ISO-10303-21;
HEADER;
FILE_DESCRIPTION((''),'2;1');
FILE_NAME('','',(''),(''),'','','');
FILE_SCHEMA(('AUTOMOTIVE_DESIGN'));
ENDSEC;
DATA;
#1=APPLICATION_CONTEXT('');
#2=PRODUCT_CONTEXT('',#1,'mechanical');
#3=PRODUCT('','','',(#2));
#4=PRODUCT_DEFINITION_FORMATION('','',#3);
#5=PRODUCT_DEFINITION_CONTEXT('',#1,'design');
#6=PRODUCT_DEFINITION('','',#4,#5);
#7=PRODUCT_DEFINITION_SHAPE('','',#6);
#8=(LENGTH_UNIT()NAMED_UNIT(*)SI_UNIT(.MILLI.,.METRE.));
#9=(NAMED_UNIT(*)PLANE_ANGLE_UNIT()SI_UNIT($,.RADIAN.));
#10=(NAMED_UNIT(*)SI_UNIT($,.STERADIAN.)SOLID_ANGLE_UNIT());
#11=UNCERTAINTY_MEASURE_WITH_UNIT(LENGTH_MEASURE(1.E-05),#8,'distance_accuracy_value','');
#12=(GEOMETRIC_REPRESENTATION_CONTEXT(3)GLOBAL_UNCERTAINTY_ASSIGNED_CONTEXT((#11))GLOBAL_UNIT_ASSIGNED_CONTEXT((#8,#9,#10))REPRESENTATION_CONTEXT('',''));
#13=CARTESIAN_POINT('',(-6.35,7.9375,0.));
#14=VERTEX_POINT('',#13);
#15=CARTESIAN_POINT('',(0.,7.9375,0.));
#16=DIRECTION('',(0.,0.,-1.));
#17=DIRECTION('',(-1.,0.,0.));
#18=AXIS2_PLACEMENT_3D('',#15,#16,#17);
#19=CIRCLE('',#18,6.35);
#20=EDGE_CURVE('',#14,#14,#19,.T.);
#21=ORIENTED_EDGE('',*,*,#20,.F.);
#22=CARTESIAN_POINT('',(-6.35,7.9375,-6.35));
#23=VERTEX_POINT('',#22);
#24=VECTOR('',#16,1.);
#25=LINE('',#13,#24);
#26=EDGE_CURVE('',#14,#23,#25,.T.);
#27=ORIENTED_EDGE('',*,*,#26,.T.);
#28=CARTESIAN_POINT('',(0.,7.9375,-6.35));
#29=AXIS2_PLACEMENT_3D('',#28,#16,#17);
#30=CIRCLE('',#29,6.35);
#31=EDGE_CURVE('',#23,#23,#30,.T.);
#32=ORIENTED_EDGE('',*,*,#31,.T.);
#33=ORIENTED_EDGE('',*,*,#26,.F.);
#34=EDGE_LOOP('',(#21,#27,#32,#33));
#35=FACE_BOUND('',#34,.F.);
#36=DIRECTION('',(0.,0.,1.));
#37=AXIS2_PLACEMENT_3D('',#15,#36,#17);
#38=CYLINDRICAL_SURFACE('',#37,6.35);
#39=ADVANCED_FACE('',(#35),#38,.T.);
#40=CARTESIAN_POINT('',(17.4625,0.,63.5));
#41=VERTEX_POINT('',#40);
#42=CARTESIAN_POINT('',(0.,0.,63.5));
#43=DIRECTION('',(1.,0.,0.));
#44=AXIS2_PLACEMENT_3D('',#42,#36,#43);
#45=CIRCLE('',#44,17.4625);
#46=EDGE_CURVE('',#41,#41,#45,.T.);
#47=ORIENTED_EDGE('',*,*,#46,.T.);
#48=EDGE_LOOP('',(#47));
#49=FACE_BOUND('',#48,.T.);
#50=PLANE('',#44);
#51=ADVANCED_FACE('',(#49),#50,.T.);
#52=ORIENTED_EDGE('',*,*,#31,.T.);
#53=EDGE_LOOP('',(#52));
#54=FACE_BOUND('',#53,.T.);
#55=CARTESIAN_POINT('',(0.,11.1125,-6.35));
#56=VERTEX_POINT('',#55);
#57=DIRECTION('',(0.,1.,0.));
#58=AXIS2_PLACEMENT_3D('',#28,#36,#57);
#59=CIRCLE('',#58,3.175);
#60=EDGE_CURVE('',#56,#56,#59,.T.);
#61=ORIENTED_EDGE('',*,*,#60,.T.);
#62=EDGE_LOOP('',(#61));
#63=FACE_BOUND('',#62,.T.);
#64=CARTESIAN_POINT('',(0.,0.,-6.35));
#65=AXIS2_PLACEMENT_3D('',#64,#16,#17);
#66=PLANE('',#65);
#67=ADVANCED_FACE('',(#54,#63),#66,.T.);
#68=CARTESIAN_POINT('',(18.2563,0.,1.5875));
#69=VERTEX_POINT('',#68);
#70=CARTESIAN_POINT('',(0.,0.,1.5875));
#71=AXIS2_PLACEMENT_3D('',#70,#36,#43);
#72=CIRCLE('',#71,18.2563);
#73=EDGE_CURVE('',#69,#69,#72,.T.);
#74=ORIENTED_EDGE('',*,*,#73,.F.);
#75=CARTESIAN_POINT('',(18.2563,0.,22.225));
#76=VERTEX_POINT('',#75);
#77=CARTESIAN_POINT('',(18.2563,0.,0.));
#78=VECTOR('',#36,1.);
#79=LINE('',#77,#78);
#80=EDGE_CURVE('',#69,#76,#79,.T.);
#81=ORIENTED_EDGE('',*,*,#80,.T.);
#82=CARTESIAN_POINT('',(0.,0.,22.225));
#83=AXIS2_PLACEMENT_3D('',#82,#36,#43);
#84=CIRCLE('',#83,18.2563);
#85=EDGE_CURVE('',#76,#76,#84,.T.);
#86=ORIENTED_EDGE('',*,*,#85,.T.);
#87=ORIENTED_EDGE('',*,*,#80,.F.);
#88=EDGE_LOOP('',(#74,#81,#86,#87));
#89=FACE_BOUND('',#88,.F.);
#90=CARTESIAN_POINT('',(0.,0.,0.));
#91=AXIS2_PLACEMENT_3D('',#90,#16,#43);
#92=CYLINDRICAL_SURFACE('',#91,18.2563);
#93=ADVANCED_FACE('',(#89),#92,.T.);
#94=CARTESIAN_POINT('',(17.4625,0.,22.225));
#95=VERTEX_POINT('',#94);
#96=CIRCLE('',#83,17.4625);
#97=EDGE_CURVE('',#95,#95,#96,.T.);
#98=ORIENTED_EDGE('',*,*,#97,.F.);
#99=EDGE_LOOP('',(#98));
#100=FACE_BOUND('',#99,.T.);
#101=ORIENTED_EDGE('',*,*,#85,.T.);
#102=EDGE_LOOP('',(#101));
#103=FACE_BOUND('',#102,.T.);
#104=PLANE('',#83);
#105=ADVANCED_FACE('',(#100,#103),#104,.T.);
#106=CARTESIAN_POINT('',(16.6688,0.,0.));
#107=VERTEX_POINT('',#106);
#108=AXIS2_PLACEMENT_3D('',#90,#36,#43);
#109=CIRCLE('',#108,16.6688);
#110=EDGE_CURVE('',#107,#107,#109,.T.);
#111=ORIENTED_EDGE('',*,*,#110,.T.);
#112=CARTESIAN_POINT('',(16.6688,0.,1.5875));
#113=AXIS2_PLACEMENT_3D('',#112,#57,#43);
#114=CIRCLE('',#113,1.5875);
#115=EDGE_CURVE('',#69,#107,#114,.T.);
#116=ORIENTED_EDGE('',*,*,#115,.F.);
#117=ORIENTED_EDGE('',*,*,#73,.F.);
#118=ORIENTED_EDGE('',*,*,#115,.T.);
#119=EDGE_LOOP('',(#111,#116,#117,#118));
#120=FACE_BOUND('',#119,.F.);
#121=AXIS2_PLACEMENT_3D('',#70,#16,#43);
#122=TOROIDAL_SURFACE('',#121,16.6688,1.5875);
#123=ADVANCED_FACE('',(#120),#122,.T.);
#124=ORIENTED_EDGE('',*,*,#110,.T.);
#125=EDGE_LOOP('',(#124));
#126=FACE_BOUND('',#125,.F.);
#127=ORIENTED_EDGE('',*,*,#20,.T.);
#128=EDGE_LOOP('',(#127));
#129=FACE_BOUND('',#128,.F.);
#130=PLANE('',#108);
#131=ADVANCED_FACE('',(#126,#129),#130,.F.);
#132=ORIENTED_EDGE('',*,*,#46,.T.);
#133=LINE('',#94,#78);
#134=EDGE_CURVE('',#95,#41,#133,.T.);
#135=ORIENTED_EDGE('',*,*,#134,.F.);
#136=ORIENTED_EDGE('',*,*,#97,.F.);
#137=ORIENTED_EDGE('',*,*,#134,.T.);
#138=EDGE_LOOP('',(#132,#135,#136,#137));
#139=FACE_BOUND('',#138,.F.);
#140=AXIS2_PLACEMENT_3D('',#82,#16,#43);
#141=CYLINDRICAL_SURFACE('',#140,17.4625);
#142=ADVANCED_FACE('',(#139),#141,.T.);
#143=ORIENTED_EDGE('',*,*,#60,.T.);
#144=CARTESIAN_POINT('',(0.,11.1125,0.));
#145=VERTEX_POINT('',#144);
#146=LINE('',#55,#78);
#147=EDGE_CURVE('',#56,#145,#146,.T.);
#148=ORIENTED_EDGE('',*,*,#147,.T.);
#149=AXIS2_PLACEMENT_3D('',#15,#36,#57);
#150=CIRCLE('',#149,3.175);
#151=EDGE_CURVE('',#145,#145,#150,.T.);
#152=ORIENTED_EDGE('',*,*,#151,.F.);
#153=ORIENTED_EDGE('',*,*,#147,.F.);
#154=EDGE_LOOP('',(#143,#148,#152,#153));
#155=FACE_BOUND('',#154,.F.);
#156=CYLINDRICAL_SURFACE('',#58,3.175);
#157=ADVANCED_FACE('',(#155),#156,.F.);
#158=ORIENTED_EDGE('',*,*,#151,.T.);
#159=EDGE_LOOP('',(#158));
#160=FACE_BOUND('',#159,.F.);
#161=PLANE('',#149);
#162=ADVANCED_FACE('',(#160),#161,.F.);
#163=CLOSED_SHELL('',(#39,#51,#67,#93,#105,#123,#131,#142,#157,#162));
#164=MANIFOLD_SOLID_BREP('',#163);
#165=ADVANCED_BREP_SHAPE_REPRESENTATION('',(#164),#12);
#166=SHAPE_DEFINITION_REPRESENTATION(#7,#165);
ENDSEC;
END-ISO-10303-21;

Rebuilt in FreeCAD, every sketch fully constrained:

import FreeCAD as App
import Part
import Sketcher
from FreeCAD import Vector
Q = App.Units.Quantity


def edges_at(feature, points):
    """Names of the edges that pass closest to the given points."""
    edges = feature.Shape.Edges
    near = lambda p: min(range(len(edges)), key=lambda i: edges[i].distToShape(Part.Vertex(*p))[0])
    return sorted({f"Edge{near(p) + 1}" for p in points})

doc = App.newDocument("Part")
body = doc.addObject("PartDesign::Body", "Body")

sketch1 = doc.addObject("Sketcher::SketchObject", "Sketch")
body.addObject(sketch1)
sketch1.AttachmentSupport = (doc.XY_Plane, [""])
sketch1.MapMode = "FlatFace"
sketch1.addGeometry(Part.Circle(Vector(0, 0, 0), Vector(0, 0, 1), 18.2563), False)
sketch1.addConstraint(Sketcher.Constraint("Coincident", 0, 3, -1, 1))
sketch1.addConstraint(Sketcher.Constraint("Diameter", 0, Q("1.4375 in")))
pad1 = doc.addObject("PartDesign::Pad", "Pad")
body.addObject(pad1)
pad1.Profile = sketch1
pad1.Length = Q("0.875 in")

sketch2 = doc.addObject("Sketcher::SketchObject", "Sketch001")
body.addObject(sketch2)
sketch2.AttachmentSupport = (doc.XY_Plane, [""])
sketch2.MapMode = "FlatFace"
sketch2.AttachmentOffset = App.Placement(Vector(0, 0, 0.875 * 25.4), App.Rotation())
sketch2.addGeometry(Part.Circle(Vector(0, 0, 0), Vector(0, 0, 1), 17.4625), False)
sketch2.addConstraint(Sketcher.Constraint("Coincident", 0, 3, -1, 1))
sketch2.addConstraint(Sketcher.Constraint("Diameter", 0, Q("1.375 in")))
pad2 = doc.addObject("PartDesign::Pad", "Pad001")
body.addObject(pad2)
pad2.Profile = sketch2
pad2.Length = Q("1.625 in")
doc.recompute()

fillet = doc.addObject("PartDesign::Fillet", "Fillet")
body.addObject(fillet)
fillet.Base = (pad2, edges_at(pad2, [(-18.256, 0, 0)]))
fillet.Radius = Q("0.0625 in")

sketch3 = doc.addObject("Sketcher::SketchObject", "Sketch002")
body.addObject(sketch3)
sketch3.AttachmentSupport = (doc.XY_Plane, [""])
sketch3.MapMode = "FlatFace"
sketch3.addGeometry(Part.Circle(Vector(0, 7.9375, 0), Vector(0, 0, 1), 6.35), False)
sketch3.addConstraint(Sketcher.Constraint("PointOnObject", 0, 3, -2))
sketch3.addConstraint(Sketcher.Constraint("Diameter", 0, Q("0.5 in")))
sketch3.addConstraint(Sketcher.Constraint("DistanceY", -1, 1, 0, 3, Q("0.3125 in")))
pad3 = doc.addObject("PartDesign::Pad", "Pad002")
body.addObject(pad3)
pad3.Profile = sketch3
pad3.Length = Q("0.25 in")
pad3.Reversed = True

sketch4 = doc.addObject("Sketcher::SketchObject", "Sketch003")
body.addObject(sketch4)
sketch4.AttachmentSupport = (doc.XY_Plane, [""])
sketch4.MapMode = "FlatFace"
sketch4.AttachmentOffset = App.Placement(Vector(0, 0, -0.25 * 25.4), App.Rotation())
sketch4.addGeometry(Part.Circle(Vector(0, 7.9375, 0), Vector(0, 0, 1), 3.175), False)
sketch4.addConstraint(Sketcher.Constraint("PointOnObject", 0, 3, -2))
sketch4.addConstraint(Sketcher.Constraint("Diameter", 0, Q("0.25 in")))
sketch4.addConstraint(Sketcher.Constraint("DistanceY", -1, 1, 0, 3, Q("0.3125 in")))
doc.recompute()
hole = doc.addObject("PartDesign::Hole", "Hole")
body.addObject(hole)
hole.Profile = sketch4
hole.ThreadType = "None"
hole.Diameter = Q("0.25 in")
hole.DepthType = "Dimension"
hole.Depth = Q("0.25 in")
hole.DrillPoint = "Flat"
hole.Reversed = True

doc.recompute()
